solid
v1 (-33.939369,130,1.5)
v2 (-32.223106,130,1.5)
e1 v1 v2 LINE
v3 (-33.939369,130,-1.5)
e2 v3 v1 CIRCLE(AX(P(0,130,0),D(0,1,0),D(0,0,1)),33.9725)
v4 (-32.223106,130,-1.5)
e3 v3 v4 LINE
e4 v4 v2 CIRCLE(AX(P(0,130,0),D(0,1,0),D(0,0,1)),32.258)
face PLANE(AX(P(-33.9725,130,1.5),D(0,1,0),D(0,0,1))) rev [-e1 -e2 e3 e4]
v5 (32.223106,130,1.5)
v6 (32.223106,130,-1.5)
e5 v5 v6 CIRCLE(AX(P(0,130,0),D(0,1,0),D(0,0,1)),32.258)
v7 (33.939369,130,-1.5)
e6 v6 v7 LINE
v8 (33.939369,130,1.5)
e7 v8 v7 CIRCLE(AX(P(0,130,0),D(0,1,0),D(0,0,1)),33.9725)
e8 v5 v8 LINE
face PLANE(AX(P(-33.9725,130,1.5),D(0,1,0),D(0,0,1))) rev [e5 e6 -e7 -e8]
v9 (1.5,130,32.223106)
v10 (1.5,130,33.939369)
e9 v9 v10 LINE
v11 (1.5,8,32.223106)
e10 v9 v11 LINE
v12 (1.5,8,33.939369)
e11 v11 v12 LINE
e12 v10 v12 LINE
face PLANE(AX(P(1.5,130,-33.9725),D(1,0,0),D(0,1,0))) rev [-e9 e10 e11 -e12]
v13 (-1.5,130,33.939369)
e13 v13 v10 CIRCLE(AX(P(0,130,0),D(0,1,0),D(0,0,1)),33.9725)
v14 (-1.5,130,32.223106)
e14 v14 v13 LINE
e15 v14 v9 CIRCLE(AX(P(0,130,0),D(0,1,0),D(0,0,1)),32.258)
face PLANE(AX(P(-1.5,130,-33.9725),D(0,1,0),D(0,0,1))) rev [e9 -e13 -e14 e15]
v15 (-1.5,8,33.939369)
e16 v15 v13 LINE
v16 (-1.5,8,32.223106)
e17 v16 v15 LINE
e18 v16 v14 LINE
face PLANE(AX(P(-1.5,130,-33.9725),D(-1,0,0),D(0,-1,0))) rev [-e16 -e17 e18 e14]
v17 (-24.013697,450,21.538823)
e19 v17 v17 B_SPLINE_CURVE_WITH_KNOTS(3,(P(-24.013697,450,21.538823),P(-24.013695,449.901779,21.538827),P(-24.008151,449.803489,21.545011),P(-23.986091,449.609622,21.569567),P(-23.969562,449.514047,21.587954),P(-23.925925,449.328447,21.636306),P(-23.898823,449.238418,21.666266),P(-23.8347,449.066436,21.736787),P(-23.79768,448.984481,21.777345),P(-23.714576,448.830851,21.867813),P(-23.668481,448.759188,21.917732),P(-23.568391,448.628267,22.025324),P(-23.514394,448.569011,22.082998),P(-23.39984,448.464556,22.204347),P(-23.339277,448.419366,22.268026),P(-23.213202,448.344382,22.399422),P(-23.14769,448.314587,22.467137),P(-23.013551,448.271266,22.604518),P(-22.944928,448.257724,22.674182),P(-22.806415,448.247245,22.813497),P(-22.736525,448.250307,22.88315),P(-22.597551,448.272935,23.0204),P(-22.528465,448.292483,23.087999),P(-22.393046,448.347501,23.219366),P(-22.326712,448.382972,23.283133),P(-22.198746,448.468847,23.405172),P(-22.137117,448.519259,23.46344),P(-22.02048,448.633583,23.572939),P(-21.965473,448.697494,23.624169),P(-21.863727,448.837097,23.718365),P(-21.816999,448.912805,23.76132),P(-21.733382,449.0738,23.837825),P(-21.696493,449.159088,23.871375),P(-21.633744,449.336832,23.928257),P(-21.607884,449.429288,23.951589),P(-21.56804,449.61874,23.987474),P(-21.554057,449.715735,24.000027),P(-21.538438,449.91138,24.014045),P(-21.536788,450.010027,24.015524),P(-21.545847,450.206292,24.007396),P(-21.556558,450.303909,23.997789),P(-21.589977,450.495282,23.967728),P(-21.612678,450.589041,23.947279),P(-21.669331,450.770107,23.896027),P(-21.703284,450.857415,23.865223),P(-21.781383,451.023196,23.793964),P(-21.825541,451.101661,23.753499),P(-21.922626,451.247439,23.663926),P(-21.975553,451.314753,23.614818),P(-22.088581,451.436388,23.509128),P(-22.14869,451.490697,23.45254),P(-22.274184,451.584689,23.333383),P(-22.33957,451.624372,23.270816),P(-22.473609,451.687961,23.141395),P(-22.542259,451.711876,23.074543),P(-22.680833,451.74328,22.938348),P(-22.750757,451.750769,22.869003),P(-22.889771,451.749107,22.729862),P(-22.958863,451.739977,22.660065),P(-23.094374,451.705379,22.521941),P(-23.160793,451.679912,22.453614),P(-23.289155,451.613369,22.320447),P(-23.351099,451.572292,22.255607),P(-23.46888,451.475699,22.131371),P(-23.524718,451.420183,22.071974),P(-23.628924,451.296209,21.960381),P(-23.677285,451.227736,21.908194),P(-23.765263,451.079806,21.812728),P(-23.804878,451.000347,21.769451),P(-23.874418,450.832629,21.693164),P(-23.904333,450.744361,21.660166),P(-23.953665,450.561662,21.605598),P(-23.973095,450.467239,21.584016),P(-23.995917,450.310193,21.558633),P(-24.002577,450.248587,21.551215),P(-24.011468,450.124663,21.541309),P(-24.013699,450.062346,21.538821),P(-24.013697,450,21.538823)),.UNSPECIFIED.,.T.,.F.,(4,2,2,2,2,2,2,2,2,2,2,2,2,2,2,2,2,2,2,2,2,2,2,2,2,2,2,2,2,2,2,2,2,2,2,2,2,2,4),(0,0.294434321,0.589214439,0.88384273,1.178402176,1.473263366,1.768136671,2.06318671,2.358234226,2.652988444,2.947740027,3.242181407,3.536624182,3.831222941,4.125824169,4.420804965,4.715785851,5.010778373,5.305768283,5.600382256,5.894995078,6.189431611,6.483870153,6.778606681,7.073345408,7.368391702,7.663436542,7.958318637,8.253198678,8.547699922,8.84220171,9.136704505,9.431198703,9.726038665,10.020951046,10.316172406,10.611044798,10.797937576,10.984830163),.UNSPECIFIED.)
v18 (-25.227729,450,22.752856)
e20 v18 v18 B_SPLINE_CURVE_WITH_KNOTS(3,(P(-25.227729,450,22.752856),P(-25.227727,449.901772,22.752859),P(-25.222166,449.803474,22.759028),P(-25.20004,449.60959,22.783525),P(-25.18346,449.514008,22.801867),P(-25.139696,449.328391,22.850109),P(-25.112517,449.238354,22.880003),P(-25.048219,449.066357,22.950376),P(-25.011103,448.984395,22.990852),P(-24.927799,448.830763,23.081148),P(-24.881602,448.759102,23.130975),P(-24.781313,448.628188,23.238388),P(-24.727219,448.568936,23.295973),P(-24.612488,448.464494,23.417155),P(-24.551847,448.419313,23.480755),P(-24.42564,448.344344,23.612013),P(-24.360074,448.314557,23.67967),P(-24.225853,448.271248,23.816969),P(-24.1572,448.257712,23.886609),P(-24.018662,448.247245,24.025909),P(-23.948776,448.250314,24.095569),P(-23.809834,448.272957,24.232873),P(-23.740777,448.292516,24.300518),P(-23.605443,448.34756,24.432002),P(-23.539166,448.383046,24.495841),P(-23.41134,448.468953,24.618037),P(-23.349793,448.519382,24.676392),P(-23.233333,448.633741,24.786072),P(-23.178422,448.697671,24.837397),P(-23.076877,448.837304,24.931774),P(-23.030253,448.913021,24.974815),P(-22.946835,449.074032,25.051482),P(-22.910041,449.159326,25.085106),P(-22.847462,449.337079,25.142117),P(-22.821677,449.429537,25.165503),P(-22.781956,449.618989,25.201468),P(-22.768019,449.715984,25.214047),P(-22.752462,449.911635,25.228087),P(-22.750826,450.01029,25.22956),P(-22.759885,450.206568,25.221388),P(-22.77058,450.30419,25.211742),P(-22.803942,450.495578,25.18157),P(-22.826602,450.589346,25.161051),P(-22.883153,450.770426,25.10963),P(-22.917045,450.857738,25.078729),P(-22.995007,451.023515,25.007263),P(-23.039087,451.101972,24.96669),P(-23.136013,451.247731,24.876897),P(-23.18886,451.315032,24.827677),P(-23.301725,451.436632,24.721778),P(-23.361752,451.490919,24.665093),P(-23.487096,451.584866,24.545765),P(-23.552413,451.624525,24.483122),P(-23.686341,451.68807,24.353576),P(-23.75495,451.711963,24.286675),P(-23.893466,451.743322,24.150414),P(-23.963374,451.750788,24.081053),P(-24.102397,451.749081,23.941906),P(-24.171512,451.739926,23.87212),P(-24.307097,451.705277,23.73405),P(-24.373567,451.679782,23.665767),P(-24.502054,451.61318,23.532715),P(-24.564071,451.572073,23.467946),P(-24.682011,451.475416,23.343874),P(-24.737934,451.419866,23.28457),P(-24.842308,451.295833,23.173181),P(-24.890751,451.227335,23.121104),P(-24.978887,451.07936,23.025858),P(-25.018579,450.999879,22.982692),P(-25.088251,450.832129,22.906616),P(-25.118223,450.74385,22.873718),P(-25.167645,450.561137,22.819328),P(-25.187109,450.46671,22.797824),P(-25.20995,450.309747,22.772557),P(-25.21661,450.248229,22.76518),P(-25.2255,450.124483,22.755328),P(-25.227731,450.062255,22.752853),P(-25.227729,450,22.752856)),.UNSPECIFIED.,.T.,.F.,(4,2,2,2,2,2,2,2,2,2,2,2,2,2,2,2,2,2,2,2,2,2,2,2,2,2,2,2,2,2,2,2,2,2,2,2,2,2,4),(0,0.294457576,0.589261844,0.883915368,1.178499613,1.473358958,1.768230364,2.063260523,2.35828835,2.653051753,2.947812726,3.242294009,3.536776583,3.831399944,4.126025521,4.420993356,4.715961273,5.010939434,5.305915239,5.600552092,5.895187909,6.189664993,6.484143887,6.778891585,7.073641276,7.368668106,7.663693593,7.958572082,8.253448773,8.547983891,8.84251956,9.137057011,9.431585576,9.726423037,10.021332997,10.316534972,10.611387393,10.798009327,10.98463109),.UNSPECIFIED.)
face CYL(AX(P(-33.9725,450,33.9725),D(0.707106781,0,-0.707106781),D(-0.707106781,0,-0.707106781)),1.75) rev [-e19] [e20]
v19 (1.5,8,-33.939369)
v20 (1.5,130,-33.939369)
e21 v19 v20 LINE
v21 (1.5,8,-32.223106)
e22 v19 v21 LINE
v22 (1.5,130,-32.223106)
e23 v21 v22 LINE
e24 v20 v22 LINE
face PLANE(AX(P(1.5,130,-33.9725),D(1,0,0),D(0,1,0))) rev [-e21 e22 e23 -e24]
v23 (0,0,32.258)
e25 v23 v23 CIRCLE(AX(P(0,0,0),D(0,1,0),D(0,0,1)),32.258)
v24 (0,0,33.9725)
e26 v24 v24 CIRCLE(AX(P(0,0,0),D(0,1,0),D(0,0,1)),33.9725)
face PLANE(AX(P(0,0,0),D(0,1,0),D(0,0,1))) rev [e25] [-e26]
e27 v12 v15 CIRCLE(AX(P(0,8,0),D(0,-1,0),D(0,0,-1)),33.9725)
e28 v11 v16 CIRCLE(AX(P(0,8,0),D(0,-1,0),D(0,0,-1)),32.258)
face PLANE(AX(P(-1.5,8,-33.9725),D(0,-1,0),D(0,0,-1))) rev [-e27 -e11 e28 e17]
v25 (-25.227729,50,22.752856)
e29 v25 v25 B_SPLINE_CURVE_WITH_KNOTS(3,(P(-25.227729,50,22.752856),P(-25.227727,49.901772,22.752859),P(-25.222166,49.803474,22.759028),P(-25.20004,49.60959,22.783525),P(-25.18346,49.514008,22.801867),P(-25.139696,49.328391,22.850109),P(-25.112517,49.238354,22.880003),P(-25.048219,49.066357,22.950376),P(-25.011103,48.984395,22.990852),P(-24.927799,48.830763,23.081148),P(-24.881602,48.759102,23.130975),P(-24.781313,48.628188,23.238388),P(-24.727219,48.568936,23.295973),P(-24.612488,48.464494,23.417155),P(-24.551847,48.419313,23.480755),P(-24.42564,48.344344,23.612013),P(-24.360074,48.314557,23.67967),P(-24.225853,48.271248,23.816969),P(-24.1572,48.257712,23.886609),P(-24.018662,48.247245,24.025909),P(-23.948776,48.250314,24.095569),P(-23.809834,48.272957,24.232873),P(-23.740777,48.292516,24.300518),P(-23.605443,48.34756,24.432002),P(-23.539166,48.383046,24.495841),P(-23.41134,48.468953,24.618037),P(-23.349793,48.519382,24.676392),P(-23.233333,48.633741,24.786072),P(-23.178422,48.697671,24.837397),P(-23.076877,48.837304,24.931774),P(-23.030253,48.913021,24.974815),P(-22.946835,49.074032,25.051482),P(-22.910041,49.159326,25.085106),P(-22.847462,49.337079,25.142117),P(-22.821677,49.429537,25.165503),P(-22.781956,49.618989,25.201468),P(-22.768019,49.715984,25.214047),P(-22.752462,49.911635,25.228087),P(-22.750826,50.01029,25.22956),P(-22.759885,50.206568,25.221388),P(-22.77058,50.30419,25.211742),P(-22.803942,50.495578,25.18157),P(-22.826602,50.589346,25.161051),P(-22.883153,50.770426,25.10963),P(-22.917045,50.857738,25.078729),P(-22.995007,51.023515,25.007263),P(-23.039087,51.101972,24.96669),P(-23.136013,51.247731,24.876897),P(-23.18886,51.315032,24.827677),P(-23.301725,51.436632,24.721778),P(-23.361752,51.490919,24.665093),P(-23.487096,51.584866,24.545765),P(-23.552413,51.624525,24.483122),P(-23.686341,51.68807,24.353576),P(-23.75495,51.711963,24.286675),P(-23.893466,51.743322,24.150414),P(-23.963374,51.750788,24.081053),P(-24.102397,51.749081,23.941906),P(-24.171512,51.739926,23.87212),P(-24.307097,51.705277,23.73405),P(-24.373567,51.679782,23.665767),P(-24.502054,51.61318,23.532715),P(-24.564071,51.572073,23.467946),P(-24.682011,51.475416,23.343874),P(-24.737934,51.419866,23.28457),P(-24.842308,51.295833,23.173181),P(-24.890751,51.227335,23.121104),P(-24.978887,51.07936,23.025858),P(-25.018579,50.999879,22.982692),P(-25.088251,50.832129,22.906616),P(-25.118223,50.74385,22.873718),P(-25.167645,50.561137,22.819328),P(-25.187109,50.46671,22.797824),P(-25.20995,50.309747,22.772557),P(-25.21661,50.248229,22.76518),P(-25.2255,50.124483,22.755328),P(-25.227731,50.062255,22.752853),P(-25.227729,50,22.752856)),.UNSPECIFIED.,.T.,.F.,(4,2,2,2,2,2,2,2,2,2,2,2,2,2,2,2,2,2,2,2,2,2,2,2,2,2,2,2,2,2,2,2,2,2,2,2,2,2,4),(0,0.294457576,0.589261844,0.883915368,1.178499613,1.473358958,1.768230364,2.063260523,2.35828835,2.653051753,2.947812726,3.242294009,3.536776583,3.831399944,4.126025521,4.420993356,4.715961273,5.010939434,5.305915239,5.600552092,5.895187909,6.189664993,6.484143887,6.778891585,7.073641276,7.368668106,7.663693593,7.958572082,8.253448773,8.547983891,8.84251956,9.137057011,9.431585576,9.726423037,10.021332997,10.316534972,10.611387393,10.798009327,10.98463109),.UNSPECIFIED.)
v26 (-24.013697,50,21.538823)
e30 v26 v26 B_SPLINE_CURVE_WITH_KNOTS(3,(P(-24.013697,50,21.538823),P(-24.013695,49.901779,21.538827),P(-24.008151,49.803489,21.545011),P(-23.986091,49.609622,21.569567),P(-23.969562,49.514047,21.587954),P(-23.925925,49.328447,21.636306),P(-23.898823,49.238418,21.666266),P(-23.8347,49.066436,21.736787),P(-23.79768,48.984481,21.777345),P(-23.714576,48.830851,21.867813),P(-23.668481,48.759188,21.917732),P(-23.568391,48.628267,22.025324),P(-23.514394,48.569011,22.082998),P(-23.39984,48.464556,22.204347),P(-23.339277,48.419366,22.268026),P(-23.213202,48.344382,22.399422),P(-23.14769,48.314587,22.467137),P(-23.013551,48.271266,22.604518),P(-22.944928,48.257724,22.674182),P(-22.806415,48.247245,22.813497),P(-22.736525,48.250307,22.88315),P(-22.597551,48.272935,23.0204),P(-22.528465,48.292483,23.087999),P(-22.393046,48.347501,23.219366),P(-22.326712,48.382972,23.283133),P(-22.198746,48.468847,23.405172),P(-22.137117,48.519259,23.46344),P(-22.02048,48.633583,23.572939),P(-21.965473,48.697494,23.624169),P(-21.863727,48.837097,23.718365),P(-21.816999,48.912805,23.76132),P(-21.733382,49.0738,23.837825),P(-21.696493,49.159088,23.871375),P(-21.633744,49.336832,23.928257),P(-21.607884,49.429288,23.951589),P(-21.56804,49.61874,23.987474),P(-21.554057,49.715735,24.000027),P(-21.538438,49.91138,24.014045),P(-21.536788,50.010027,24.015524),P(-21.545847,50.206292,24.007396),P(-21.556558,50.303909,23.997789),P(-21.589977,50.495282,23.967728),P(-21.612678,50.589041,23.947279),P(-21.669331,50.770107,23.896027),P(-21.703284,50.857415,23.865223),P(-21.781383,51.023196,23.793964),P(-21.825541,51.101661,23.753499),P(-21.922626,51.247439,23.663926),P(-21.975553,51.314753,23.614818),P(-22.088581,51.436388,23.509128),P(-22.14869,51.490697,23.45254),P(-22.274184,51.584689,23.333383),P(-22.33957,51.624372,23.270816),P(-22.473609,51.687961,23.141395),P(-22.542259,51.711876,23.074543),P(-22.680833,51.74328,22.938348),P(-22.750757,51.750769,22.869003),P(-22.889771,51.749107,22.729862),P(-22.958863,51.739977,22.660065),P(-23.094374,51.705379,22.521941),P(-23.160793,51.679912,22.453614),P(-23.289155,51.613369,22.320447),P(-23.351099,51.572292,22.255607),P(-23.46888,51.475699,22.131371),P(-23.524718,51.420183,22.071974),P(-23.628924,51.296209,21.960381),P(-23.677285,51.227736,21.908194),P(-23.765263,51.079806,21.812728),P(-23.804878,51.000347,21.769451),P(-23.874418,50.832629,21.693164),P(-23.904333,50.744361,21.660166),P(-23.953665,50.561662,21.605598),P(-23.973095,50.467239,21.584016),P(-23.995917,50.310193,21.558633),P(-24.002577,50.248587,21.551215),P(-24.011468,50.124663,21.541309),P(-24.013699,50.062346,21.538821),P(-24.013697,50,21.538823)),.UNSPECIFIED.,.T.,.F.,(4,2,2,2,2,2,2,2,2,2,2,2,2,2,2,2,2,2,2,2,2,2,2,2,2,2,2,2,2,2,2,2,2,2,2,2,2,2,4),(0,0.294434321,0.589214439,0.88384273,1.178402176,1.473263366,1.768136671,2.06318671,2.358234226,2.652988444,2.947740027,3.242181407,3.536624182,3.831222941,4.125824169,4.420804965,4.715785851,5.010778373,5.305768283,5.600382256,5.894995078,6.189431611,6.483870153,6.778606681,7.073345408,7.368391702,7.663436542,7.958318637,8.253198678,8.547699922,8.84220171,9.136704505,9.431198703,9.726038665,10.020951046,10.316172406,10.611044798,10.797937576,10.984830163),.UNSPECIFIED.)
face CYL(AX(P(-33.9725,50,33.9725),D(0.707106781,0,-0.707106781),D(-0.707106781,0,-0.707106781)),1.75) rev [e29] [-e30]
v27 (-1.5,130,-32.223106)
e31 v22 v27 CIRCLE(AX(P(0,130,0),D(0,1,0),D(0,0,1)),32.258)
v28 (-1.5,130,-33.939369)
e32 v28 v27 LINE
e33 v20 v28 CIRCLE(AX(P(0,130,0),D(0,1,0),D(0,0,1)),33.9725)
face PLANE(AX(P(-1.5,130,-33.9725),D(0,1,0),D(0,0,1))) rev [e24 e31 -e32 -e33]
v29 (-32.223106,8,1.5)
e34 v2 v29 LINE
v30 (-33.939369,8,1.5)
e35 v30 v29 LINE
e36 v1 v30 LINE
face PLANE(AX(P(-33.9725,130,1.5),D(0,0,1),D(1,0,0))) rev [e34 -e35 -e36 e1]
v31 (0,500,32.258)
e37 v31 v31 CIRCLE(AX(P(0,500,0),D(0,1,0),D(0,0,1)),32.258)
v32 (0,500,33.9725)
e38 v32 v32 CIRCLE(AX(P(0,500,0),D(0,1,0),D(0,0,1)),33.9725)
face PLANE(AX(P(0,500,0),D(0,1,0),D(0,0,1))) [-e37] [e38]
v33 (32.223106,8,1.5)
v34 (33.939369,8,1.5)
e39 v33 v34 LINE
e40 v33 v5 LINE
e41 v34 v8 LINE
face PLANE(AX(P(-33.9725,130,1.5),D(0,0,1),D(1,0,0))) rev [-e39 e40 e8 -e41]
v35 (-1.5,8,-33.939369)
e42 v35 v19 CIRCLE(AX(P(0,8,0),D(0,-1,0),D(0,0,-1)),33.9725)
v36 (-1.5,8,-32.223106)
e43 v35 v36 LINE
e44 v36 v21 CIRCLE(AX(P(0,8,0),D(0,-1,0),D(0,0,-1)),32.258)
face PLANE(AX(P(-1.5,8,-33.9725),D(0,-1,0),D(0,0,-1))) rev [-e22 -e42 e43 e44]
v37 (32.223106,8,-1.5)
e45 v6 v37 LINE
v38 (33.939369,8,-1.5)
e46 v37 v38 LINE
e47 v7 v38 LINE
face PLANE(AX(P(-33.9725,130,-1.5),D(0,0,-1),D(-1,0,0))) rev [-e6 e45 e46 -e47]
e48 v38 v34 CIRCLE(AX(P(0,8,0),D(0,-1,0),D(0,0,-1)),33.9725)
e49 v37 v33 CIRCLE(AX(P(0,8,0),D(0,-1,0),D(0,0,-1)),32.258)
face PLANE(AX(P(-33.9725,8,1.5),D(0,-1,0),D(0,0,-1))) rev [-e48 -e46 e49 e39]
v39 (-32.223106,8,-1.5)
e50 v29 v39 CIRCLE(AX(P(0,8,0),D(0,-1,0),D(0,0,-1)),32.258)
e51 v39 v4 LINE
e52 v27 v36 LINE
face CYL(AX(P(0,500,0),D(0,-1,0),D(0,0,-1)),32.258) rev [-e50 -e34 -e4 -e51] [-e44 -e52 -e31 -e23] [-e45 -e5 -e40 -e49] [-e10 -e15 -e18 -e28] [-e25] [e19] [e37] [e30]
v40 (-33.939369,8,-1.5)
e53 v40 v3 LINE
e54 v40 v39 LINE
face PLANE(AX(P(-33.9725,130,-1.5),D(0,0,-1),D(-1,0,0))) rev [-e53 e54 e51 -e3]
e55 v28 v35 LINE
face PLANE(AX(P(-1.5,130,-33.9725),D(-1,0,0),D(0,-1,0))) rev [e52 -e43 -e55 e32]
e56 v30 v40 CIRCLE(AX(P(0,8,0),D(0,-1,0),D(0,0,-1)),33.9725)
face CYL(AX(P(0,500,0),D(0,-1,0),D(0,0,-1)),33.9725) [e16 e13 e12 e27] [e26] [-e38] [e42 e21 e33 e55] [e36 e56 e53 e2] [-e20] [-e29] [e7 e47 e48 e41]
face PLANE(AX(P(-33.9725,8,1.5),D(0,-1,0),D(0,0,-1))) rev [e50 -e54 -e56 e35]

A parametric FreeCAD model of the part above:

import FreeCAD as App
import Part
import Sketcher
from FreeCAD import Vector

doc = App.newDocument("Part")
params = doc.addObject("Spreadsheet::Sheet", "Params")
for row, (alias, value) in enumerate([
    ("pad1_length", "500 mm"),
    ("sketch2_diameter", "3.5 mm"),
    ("sketch3_width", "3 mm"),
    ("sketch3_height", "122 mm"),
    ("pocket2_length", "1006.605916 mm"),
], start=1):
    params.set(f"A{row}", alias)
    params.set(f"B{row}", "=" + value)
    params.setAlias(f"B{row}", alias)

body = doc.addObject("PartDesign::Body", "Body")

# Sketch on XZ plane
sketch1 = body.newObject("Sketcher::SketchObject", "Sketch")
sketch1.AttachmentSupport = (doc.getObject("XZ_Plane"), [""])
sketch1.MapMode = "FlatFace"
sketch1.addGeometry([
    Part.Circle(Vector(0, 0, 0), Vector(0, 0, 1), 33.9725),
    Part.Circle(Vector(0, 0, 0), Vector(0, 0, 1), 32.258),
], False)
sketch1.addConstraint([
    Sketcher.Constraint("Coincident", 0, 3, -1, 1),
    Sketcher.Constraint("Coincident", 1, 3, -1, 1),
    Sketcher.Constraint("Diameter", 0, 67.945),
    Sketcher.Constraint("Diameter", 1, 64.516),
])
pad1 = body.newObject("PartDesign::Pad", "Pad")
pad1.Profile = sketch1
pad1.setExpression("Length", "Params.pad1_length")
pad1.Reversed = True

# Sketch on an angled plane
sketch2 = body.newObject("Sketcher::SketchObject", "Sketch001")
sketch2.Placement = App.Placement(Vector(0, 0, 0), App.Rotation(Vector(0.707106781, 0, 0.707106781), Vector(0, 0.999999999, 0), Vector(-0.707106781, 0, 0.707106781), "ZXY"))
sketch2.addGeometry([
    Part.Circle(Vector(0, 50, 0), Vector(0, 0, 1), 1.75),
    Part.Circle(Vector(0, 450, 0), Vector(0, 0, 1), 1.75),
], False)
sketch2.addConstraint([
    Sketcher.Constraint("Equal", 0, 1),
    Sketcher.Constraint("PointOnObject", 0, 3, -2),
    Sketcher.Constraint("PointOnObject", 1, 3, -2),
    Sketcher.Constraint("Diameter", 0, 3.5),
    Sketcher.Constraint("DistanceY", -1, 1, 0, 3, 50.0),
    Sketcher.Constraint("DistanceY", -1, 1, 1, 3, 450.0),
])
sketch2.setExpression("Constraints[3]", "Params.sketch2_diameter")
pocket1 = body.newObject("PartDesign::Pocket", "Pocket")
pocket1.Profile = sketch2
pocket1.Type = "ThroughAll"
pocket1.Reversed = True

# Sketch on XY plane
sketch3 = body.newObject("Sketcher::SketchObject", "Sketch002")
sketch3.AttachmentSupport = (doc.getObject("XY_Plane"), [""])
sketch3.MapMode = "FlatFace"
sketch3.addGeometry([
    Part.LineSegment(Vector(-1.5, 130, 0), Vector(-1.5, 8, 0)),
    Part.LineSegment(Vector(-1.5, 8, 0), Vector(1.5, 8, 0)),
    Part.LineSegment(Vector(1.5, 8, 0), Vector(1.5, 130, 0)),
    Part.LineSegment(Vector(1.5, 130, 0), Vector(-1.5, 130, 0)),
], False)
sketch3.addConstraint([
    Sketcher.Constraint("Coincident", 0, 2, 1, 1),
    Sketcher.Constraint("Coincident", 1, 2, 2, 1),
    Sketcher.Constraint("Coincident", 2, 2, 3, 1),
    Sketcher.Constraint("Coincident", 3, 2, 0, 1),
    Sketcher.Constraint("Vertical", 0),
    Sketcher.Constraint("Horizontal", 1),
    Sketcher.Constraint("Vertical", 2),
    Sketcher.Constraint("Horizontal", 3),
    Sketcher.Constraint("DistanceX", 1, 1, 1, 2, 3.0),
    Sketcher.Constraint("DistanceY", 0, 2, 0, 1, 122.0),
    Sketcher.Constraint("DistanceY", -1, 1, 0, 2, 8.0),
    Sketcher.Constraint("DistanceX", 0, 2, -1, 1, 1.5),
])
sketch3.setExpression("Constraints[8]", "Params.sketch3_width")
sketch3.setExpression("Constraints[9]", "Params.sketch3_height")
pocket2 = body.newObject("PartDesign::Pocket", "Pocket001")
pocket2.Profile = sketch3
pocket2.setExpression("Length", "Params.pocket2_length")
pocket2.Midplane = True
doc.recompute()

polarpattern = body.newObject("PartDesign::PolarPattern", "PolarPattern")
polarpattern.Originals = [pocket2]
polarpattern.Axis = (doc.getObject("Y_Axis"), [""])
polarpattern.Angle = 90
polarpattern.Occurrences = 2
body.Tip = polarpattern

doc.recompute()
